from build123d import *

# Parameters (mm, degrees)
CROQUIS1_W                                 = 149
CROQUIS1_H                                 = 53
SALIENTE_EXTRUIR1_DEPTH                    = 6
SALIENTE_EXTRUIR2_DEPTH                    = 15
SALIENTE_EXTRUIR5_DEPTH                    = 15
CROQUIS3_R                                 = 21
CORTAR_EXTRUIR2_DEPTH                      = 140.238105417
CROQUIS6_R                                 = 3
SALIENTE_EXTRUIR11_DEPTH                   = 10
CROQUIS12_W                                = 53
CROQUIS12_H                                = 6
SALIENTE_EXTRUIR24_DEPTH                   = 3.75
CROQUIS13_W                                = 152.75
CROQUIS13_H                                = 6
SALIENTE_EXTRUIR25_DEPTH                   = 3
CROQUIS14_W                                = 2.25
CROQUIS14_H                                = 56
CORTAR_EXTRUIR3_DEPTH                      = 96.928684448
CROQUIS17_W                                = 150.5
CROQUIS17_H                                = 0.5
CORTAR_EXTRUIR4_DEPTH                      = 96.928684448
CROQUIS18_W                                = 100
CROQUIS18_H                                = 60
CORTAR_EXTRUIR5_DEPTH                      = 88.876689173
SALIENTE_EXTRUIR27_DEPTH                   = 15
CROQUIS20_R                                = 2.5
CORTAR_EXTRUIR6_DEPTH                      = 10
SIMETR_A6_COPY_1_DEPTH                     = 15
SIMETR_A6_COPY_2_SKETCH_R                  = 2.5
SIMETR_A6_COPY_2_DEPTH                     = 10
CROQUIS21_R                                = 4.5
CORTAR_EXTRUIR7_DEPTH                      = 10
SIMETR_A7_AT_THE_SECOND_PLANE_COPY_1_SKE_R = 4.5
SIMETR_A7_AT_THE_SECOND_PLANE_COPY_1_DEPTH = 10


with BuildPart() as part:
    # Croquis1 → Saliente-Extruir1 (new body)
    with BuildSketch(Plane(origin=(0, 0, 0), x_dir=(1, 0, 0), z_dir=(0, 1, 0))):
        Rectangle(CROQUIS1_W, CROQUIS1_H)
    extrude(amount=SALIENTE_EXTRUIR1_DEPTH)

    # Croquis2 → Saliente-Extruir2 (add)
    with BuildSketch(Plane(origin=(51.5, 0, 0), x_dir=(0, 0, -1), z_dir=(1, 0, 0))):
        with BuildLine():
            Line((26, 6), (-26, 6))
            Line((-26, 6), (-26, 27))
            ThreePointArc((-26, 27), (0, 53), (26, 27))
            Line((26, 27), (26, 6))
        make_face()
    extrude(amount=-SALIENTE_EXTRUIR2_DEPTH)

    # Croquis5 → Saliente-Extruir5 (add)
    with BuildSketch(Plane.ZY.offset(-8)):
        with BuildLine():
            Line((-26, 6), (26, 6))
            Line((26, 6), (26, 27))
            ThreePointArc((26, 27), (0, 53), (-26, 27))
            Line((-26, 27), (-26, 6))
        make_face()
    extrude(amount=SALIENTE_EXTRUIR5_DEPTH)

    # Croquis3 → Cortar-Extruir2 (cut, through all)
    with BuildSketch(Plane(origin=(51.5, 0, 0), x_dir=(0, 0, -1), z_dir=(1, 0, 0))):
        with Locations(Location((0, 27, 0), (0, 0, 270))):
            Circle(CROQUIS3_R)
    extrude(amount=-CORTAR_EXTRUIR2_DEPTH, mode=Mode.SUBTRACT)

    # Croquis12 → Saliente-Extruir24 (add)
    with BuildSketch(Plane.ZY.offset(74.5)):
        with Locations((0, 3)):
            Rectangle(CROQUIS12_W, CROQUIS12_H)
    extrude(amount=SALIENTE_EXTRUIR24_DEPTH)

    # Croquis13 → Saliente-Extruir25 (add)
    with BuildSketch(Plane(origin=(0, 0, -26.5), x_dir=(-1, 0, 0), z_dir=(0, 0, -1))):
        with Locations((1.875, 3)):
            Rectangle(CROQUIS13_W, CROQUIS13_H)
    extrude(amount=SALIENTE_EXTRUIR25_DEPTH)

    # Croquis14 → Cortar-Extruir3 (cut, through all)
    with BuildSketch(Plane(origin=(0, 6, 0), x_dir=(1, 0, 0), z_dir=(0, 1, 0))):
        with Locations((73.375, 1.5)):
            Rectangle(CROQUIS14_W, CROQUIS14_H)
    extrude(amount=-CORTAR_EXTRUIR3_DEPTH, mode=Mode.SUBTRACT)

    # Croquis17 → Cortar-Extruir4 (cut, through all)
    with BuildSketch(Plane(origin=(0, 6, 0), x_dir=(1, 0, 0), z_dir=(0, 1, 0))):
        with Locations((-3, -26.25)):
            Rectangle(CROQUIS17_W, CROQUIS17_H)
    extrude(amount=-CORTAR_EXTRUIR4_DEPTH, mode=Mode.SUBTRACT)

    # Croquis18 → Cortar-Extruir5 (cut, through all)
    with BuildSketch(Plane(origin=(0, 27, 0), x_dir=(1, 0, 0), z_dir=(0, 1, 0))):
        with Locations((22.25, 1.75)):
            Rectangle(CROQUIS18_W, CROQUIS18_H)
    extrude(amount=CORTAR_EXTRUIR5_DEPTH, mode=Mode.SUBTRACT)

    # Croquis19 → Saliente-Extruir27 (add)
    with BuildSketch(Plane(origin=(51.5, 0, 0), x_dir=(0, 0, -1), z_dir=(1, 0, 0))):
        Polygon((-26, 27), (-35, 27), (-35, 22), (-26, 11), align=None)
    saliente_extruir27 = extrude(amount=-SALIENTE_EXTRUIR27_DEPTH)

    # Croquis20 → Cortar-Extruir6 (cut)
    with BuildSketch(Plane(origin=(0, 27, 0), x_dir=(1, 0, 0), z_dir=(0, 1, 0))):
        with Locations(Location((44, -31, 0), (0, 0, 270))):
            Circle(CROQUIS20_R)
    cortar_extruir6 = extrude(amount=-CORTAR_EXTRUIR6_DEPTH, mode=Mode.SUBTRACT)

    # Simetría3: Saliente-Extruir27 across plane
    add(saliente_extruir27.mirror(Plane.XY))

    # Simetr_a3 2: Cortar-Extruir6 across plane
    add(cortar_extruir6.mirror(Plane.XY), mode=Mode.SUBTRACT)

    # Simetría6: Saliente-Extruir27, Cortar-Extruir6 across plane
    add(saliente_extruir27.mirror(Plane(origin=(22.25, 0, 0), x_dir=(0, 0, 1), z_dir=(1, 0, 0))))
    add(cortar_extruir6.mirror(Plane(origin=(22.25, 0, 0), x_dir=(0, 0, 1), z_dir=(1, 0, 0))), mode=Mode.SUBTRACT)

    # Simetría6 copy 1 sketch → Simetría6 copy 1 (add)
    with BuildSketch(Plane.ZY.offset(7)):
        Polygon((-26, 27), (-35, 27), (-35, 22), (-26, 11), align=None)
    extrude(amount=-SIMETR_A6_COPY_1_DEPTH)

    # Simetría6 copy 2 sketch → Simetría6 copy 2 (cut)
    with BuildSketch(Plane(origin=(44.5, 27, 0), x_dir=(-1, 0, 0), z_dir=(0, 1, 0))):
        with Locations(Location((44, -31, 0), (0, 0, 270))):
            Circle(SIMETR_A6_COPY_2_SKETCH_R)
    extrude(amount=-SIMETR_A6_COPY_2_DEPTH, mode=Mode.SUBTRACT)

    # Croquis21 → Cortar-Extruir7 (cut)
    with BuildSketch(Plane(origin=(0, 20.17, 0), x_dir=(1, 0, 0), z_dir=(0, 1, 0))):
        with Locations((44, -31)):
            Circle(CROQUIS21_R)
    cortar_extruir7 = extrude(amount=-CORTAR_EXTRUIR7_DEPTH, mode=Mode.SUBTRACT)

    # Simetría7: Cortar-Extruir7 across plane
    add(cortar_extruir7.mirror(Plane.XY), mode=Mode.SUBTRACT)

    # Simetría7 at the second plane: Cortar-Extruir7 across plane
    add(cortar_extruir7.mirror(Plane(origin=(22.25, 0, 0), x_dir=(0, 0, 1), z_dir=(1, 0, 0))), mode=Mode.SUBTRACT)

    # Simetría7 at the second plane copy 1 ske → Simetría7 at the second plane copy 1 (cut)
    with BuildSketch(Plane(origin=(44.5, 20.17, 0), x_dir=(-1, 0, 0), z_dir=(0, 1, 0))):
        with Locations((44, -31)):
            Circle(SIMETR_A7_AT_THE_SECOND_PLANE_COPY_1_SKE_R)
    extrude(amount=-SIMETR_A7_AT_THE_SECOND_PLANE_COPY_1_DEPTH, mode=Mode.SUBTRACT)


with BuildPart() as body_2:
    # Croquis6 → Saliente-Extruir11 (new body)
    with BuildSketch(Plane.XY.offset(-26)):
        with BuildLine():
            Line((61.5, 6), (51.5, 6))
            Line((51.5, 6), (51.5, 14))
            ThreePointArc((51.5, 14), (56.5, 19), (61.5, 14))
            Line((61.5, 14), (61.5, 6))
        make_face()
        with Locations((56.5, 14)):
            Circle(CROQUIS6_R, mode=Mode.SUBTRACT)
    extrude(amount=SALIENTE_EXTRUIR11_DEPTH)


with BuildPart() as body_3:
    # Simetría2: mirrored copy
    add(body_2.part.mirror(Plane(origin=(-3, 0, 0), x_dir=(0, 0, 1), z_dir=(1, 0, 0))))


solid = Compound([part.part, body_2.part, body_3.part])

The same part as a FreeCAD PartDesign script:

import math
import FreeCAD as App
import Part
import Sketcher

V = App.Vector
Q = App.Units.Quantity


def add_polygon(sketch, points):
    """Adds a closed chain of lines whose ends are joined by coincident constraints."""
    first, n = sketch.GeometryCount, len(points)
    for a, b in zip(points, points[1:] + points[:1]):
        sketch.addGeometry(Part.LineSegment(App.Vector(*a, 0), App.Vector(*b, 0)), False)
    for i in range(n):
        sketch.addConstraint(Sketcher.Constraint("Coincident", first + i, 2, first + (i + 1) % n, 1))

doc = App.newDocument("Part")
body = doc.addObject("PartDesign::Body", "Body")

sketch1 = body.newObject("Sketcher::SketchObject", "Sketch")
sketch1.AttachmentSupport = (doc.getObject("XZ_Plane"), [""])
sketch1.MapMode = "FlatFace"
add_polygon(sketch1, [(-74.5, -26.5), (-74.5, 26.5), (74.5, 26.5), (74.5, -26.5)])
sketch1.addConstraint([
    Sketcher.Constraint("Vertical", 0),
    Sketcher.Constraint("Horizontal", 1),
    Sketcher.Constraint("Vertical", 2),
    Sketcher.Constraint("Horizontal", 3),
    Sketcher.Constraint("Symmetric", 0, 2, 2, 2, -1, 1),
    Sketcher.Constraint("DistanceX", 1, 1, 1, 2, Q("149 mm")),
    Sketcher.Constraint("DistanceY", 0, 1, 0, 2, Q("53 mm")),
])
pad1 = body.newObject("PartDesign::Pad", "Pad")
pad1.Profile = sketch1
pad1.Length = 6
pad1.Reversed = True

sketch2 = body.newObject("Sketcher::SketchObject", "Sketch001")
sketch2.AttachmentSupport = (doc.getObject("YZ_Plane"), [""])
sketch2.MapMode = "FlatFace"
sketch2.AttachmentOffset = App.Placement(V(0, 0, 51.5), App.Rotation())
sketch2.addGeometry([
    Part.LineSegment(V(6, 26, 0), V(6, -26, 0)),
    Part.LineSegment(V(6, -26, 0), V(27, -26, 0)),
    Part.ArcOfCircle(Part.Circle(V(27, 0, 0), V(0, 0, 1), 26), math.radians(-90), math.radians(90)),
    Part.LineSegment(V(27, 26, 0), V(6, 26, 0)),
], False)
sketch2.addConstraint([
    Sketcher.Constraint("Coincident", 0, 2, 1, 1),
    Sketcher.Constraint("Tangent", 1, 2, 2, 1),
    Sketcher.Constraint("Tangent", 2, 2, 3, 1),
    Sketcher.Constraint("Coincident", 3, 2, 0, 1),
    Sketcher.Constraint("Vertical", 0),
    Sketcher.Constraint("Horizontal", 1),
    Sketcher.Constraint("Horizontal", 3),
    Sketcher.Constraint("PointOnObject", 2, 3, -1),
    Sketcher.Constraint("Radius", 2, Q("26 mm")),
    Sketcher.Constraint("DistanceX", 1, 1, 1, 2, Q("21 mm")),
    Sketcher.Constraint("DistanceX", -1, 1, 2, 3, Q("27 mm")),
])
pad2 = body.newObject("PartDesign::Pad", "Pad001")
pad2.Profile = sketch2
pad2.Length = 15
pad2.Reversed = True

sketch3 = body.newObject("Sketcher::SketchObject", "Sketch002")
sketch3.AttachmentSupport = (doc.getObject("YZ_Plane"), [""])
sketch3.MapMode = "FlatFace"
sketch3.AttachmentOffset = App.Placement(V(0, 0, 8), App.Rotation())
sketch3.addGeometry([
    Part.LineSegment(V(6, -26, 0), V(6, 26, 0)),
    Part.LineSegment(V(6, 26, 0), V(27, 26, 0)),
    Part.ArcOfCircle(Part.Circle(V(27, 0, 0), V(0, 0, 1), 26), math.radians(-90), math.radians(90)),
    Part.LineSegment(V(27, -26, 0), V(6, -26, 0)),
], False)
sketch3.addConstraint([
    Sketcher.Constraint("Coincident", 0, 2, 1, 1),
    Sketcher.Constraint("Tangent", 1, 2, 2, 2),
    Sketcher.Constraint("Tangent", 2, 1, 3, 1),
    Sketcher.Constraint("Coincident", 3, 2, 0, 1),
    Sketcher.Constraint("Vertical", 0),
    Sketcher.Constraint("Horizontal", 1),
    Sketcher.Constraint("Horizontal", 3),
    Sketcher.Constraint("PointOnObject", 2, 3, -1),
    Sketcher.Constraint("Radius", 2, Q("26 mm")),
    Sketcher.Constraint("DistanceX", 1, 1, 1, 2, Q("21 mm")),
    Sketcher.Constraint("DistanceX", -1, 1, 2, 3, Q("27 mm")),
])
pad3 = body.newObject("PartDesign::Pad", "Pad002")
pad3.Profile = sketch3
pad3.Length = 15
pad3.Reversed = True

sketch4 = body.newObject("Sketcher::SketchObject", "Sketch003")
sketch4.AttachmentSupport = (doc.getObject("YZ_Plane"), [""])
sketch4.MapMode = "FlatFace"
sketch4.AttachmentOffset = App.Placement(V(0, 0, 51.5), App.Rotation())
sketch4.addGeometry(Part.Circle(V(27, 0, 0), V(0, 0, 1), 21), False)
sketch4.addConstraint([
    Sketcher.Constraint("PointOnObject", 0, 3, -1),
    Sketcher.Constraint("Diameter", 0, Q("42 mm")),
    Sketcher.Constraint("DistanceX", -1, 1, 0, 3, Q("27 mm")),
])
pocket1 = body.newObject("PartDesign::Pocket", "Pocket")
pocket1.Profile = sketch4
pocket1.Type = "ThroughAll"

sketch5 = body.newObject("Sketcher::SketchObject", "Sketch004")
sketch5.AttachmentSupport = (doc.getObject("YZ_Plane"), [""])
sketch5.MapMode = "FlatFace"
sketch5.AttachmentOffset = App.Placement(V(0, 0, -74.5), App.Rotation())
add_polygon(sketch5, [(6, -26.5), (0, -26.5), (0, 26.5), (6, 26.5)])
sketch5.addConstraint([
    Sketcher.Constraint("Horizontal", 0),
    Sketcher.Constraint("Vertical", 1),
    Sketcher.Constraint("Horizontal", 2),
    Sketcher.Constraint("Vertical", 3),
    Sketcher.Constraint("Symmetric", 0, 2, 1, 2, -1, 1),
    Sketcher.Constraint("DistanceX", 0, 2, 0, 1, Q("6 mm")),
    Sketcher.Constraint("DistanceY", 1, 1, 1, 2, Q("53 mm")),
])
pad4 = body.newObject("PartDesign::Pad", "Pad003")
pad4.Profile = sketch5
pad4.Length = 3.75
pad4.Reversed = True

sketch6 = body.newObject("Sketcher::SketchObject", "Sketch005")
sketch6.AttachmentSupport = (doc.getObject("XY_Plane"), [""])
sketch6.MapMode = "FlatFace"
sketch6.AttachmentOffset = App.Placement(V(0, 0, -26.5), App.Rotation())
add_polygon(sketch6, [(74.5, 6), (74.5, 0), (-78.25, 0), (-78.25, 6)])
sketch6.addConstraint([
    Sketcher.Constraint("Vertical", 0),
    Sketcher.Constraint("Horizontal", 1),
    Sketcher.Constraint("Vertical", 2),
    Sketcher.Constraint("Horizontal", 3),
    Sketcher.Constraint("PointOnObject", 0, 2, -1),
    Sketcher.Constraint("DistanceY", 0, 2, 0, 1, Q("6 mm")),
    Sketcher.Constraint("DistanceX", 1, 2, 1, 1, Q("152.75 mm")),
    Sketcher.Constraint("DistanceX", -1, 1, 0, 2, Q("74.5 mm")),
])
pad5 = body.newObject("PartDesign::Pad", "Pad004")
pad5.Profile = sketch6
pad5.Length = 3
pad5.Reversed = True

sketch7 = body.newObject("Sketcher::SketchObject", "Sketch006")
sketch7.AttachmentSupport = (doc.getObject("XZ_Plane"), [""])
sketch7.MapMode = "FlatFace"
sketch7.AttachmentOffset = App.Placement(V(0, 0, -6), App.Rotation())
add_polygon(sketch7, [(72.25, -29.5), (72.25, 26.5), (74.5, 26.5), (74.5, -29.5)])
sketch7.addConstraint([
    Sketcher.Constraint("Vertical", 0),
    Sketcher.Constraint("Horizontal", 1),
    Sketcher.Constraint("Vertical", 2),
    Sketcher.Constraint("Horizontal", 3),
    Sketcher.Constraint("DistanceY", 0, 1, 0, 2, Q("56 mm")),
    Sketcher.Constraint("DistanceX", 1, 1, 1, 2, Q("2.25 mm")),
    Sketcher.Constraint("DistanceY", -1, 1, 0, 2, Q("26.5 mm")),
    Sketcher.Constraint("DistanceX", -1, 1, 1, 2, Q("74.5 mm")),
])
pocket2 = body.newObject("PartDesign::Pocket", "Pocket001")
pocket2.Profile = sketch7
pocket2.Type = "ThroughAll"
pocket2.Reversed = True

sketch8 = body.newObject("Sketcher::SketchObject", "Sketch007")
sketch8.AttachmentSupport = (doc.getObject("XZ_Plane"), [""])
sketch8.MapMode = "FlatFace"
sketch8.AttachmentOffset = App.Placement(V(0, 0, -6), App.Rotation())
add_polygon(sketch8, [(-78.25, 26), (-78.25, 26.5), (72.25, 26.5), (72.25, 26)])
sketch8.addConstraint([
    Sketcher.Constraint("Vertical", 0),
    Sketcher.Constraint("Horizontal", 1),
    Sketcher.Constraint("Vertical", 2),
    Sketcher.Constraint("Horizontal", 3),
    Sketcher.Constraint("DistanceX", 1, 1, 1, 2, Q("150.5 mm")),
    Sketcher.Constraint("DistanceY", 0, 1, 0, 2, Q("0.5 mm")),
    Sketcher.Constraint("DistanceY", -1, 1, 2, 2, Q("26 mm")),
    Sketcher.Constraint("DistanceX", 0, 2, -1, 1, Q("78.25 mm")),
])
pocket3 = body.newObject("PartDesign::Pocket", "Pocket002")
pocket3.Profile = sketch8
pocket3.Type = "ThroughAll"
pocket3.Reversed = True

sketch9 = body.newObject("Sketcher::SketchObject", "Sketch008")
sketch9.AttachmentSupport = (doc.getObject("XZ_Plane"), [""])
sketch9.MapMode = "FlatFace"
sketch9.AttachmentOffset = App.Placement(V(0, 0, -27), App.Rotation())
add_polygon(sketch9, [(-27.75, -31.75), (-27.75, 28.25), (72.25, 28.25), (72.25, -31.75)])
sketch9.addConstraint([
    Sketcher.Constraint("Vertical", 0),
    Sketcher.Constraint("Horizontal", 1),
    Sketcher.Constraint("Vertical", 2),
    Sketcher.Constraint("Horizontal", 3),
    Sketcher.Constraint("DistanceX", 1, 1, 1, 2, Q("100 mm")),
    Sketcher.Constraint("DistanceY", 0, 1, 0, 2, Q("60 mm")),
    Sketcher.Constraint("DistanceX", 0, 2, -1, 1, Q("27.75 mm")),
    Sketcher.Constraint("DistanceY", -1, 1, 0, 2, Q("28.25 mm")),
])
pocket4 = body.newObject("PartDesign::Pocket", "Pocket003")
pocket4.Profile = sketch9
pocket4.Type = "ThroughAll"

sketch10 = body.newObject("Sketcher::SketchObject", "Sketch009")
sketch10.AttachmentSupport = (doc.getObject("YZ_Plane"), [""])
sketch10.MapMode = "FlatFace"
sketch10.AttachmentOffset = App.Placement(V(0, 0, 51.5), App.Rotation())
add_polygon(sketch10, [(27, 26), (27, 35), (22, 35), (11, 26)])
sketch10.addConstraint([
    Sketcher.Constraint("Vertical", 0),
    Sketcher.Constraint("Horizontal", 1),
    Sketcher.Constraint("Horizontal", 3),
    Sketcher.Constraint("DistanceX", 1, 2, 1, 1, Q("5 mm")),
    Sketcher.Constraint("DistanceX", 3, 1, 3, 2, Q("16 mm")),
    Sketcher.Constraint("DistanceY", 0, 1, 0, 2, Q("9 mm")),
    Sketcher.Constraint("DistanceX", -1, 1, 0, 2, Q("27 mm")),
    Sketcher.Constraint("DistanceY", -1, 1, 0, 2, Q("35 mm")),
])
pad6 = body.newObject("PartDesign::Pad", "Pad005")
pad6.Profile = sketch10
pad6.Length = 15
pad6.Reversed = True

sketch11 = body.newObject("Sketcher::SketchObject", "Sketch010")
sketch11.AttachmentSupport = (doc.getObject("XZ_Plane"), [""])
sketch11.MapMode = "FlatFace"
sketch11.AttachmentOffset = App.Placement(V(0, 0, -27), App.Rotation())
sketch11.addGeometry(Part.Circle(V(44, 31, 0), V(0, 0, 1), 2.5), False)
sketch11.addConstraint([
    Sketcher.Constraint("Diameter", 0, Q("5 mm")),
    Sketcher.Constraint("DistanceX", -1, 1, 0, 3, Q("44 mm")),
    Sketcher.Constraint("DistanceY", -1, 1, 0, 3, Q("31 mm")),
])
pocket5 = body.newObject("PartDesign::Pocket", "Pocket004")
pocket5.Profile = sketch11
pocket5.Length = 10
pocket5.Reversed = True
doc.recompute()

mirrored = body.newObject("PartDesign::Mirrored", "Mirrored")
mirrored.Originals = [pad6]
mirrored.MirrorPlane = (doc.getObject("XY_Plane"), [""])
body.Tip = mirrored
doc.recompute()

mirrored2 = body.newObject("PartDesign::Mirrored", "Mirrored001")
mirrored2.Originals = [pocket5]
mirrored2.MirrorPlane = (doc.getObject("XY_Plane"), [""])
body.Tip = mirrored2
doc.recompute()

datumplane = body.newObject("PartDesign::Plane", "DatumPlane")
datumplane.AttachmentSupport = (doc.getObject("YZ_Plane"), [""])
datumplane.MapMode = "FlatFace"
datumplane.AttachmentOffset = App.Placement(V(0, 0, 22.25), App.Rotation())
mirrored3 = body.newObject("PartDesign::Mirrored", "Mirrored002")
mirrored3.Originals = [pad6, pocket5]
mirrored3.MirrorPlane = (datumplane, [""])
body.Tip = mirrored3

sketch12 = body.newObject("Sketcher::SketchObject", "Sketch011")
sketch12.AttachmentSupport = (doc.getObject("YZ_Plane"), [""])
sketch12.MapMode = "FlatFace"
sketch12.AttachmentOffset = App.Placement(V(0, 0, -7), App.Rotation())
add_polygon(sketch12, [(27, -26), (27, -35), (22, -35), (11, -26)])
sketch12.addConstraint([
    Sketcher.Constraint("Vertical", 0),
    Sketcher.Constraint("Horizontal", 1),
    Sketcher.Constraint("Horizontal", 3),
    Sketcher.Constraint("DistanceX", 1, 2, 1, 1, Q("5 mm")),
    Sketcher.Constraint("DistanceX", 3, 1, 3, 2, Q("16 mm")),
    Sketcher.Constraint("DistanceY", 0, 2, 0, 1, Q("9 mm")),
    Sketcher.Constraint("DistanceX", -1, 1, 0, 2, Q("27 mm")),
    Sketcher.Constraint("DistanceY", 0, 2, -1, 1, Q("35 mm")),
])
pad7 = body.newObject("PartDesign::Pad", "Pad006")
pad7.Profile = sketch12
pad7.Length = 15

sketch13 = body.newObject("Sketcher::SketchObject", "Sketch012")
sketch13.AttachmentSupport = (doc.getObject("XZ_Plane"), [""])
sketch13.MapMode = "FlatFace"
sketch13.AttachmentOffset = App.Placement(V(0, 0, -27), App.Rotation())
sketch13.addGeometry(Part.Circle(V(0.5, -31, 0), V(0, 0, 1), 2.5), False)
sketch13.addConstraint([
    Sketcher.Constraint("Diameter", 0, Q("5 mm")),
    Sketcher.Constraint("DistanceY", 0, 3, -1, 1, Q("31 mm")),
    Sketcher.Constraint("DistanceX", -1, 1, 0, 3, Q("0.5 mm")),
])
pocket6 = body.newObject("PartDesign::Pocket", "Pocket005")
pocket6.Profile = sketch13
pocket6.Length = 10
pocket6.Reversed = True

sketch14 = body.newObject("Sketcher::SketchObject", "Sketch013")
sketch14.AttachmentSupport = (doc.getObject("XZ_Plane"), [""])
sketch14.MapMode = "FlatFace"
sketch14.AttachmentOffset = App.Placement(V(0, 0, -20.17), App.Rotation())
sketch14.addGeometry(Part.Circle(V(44, 31, 0), V(0, 0, 1), 4.5), False)
sketch14.addConstraint([
    Sketcher.Constraint("Diameter", 0, Q("9 mm")),
    Sketcher.Constraint("DistanceX", -1, 1, 0, 3, Q("44 mm")),
    Sketcher.Constraint("DistanceY", -1, 1, 0, 3, Q("31 mm")),
])
pocket7 = body.newObject("PartDesign::Pocket", "Pocket006")
pocket7.Profile = sketch14
pocket7.Length = 10
pocket7.Reversed = True
doc.recompute()

mirrored4 = body.newObject("PartDesign::Mirrored", "Mirrored003")
mirrored4.Originals = [pocket7]
mirrored4.MirrorPlane = (doc.getObject("XY_Plane"), [""])
body.Tip = mirrored4
doc.recompute()

datumplane2 = body.newObject("PartDesign::Plane", "DatumPlane001")
datumplane2.AttachmentSupport = (doc.getObject("YZ_Plane"), [""])
datumplane2.MapMode = "FlatFace"
datumplane2.AttachmentOffset = App.Placement(V(0, 0, 22.25), App.Rotation())
mirrored5 = body.newObject("PartDesign::Mirrored", "Mirrored004")
mirrored5.Originals = [pocket7]
mirrored5.MirrorPlane = (datumplane2, [""])
body.Tip = mirrored5

sketch15 = body.newObject("Sketcher::SketchObject", "Sketch014")
sketch15.AttachmentSupport = (doc.getObject("XZ_Plane"), [""])
sketch15.MapMode = "FlatFace"
sketch15.AttachmentOffset = App.Placement(V(0, 0, -20.17), App.Rotation())
sketch15.addGeometry(Part.Circle(V(0.5, -31, 0), V(0, 0, 1), 4.5), False)
sketch15.addConstraint([
    Sketcher.Constraint("Diameter", 0, Q("9 mm")),
    Sketcher.Constraint("DistanceY", 0, 3, -1, 1, Q("31 mm")),
    Sketcher.Constraint("DistanceX", -1, 1, 0, 3, Q("0.5 mm")),
])
pocket8 = body.newObject("PartDesign::Pocket", "Pocket007")
pocket8.Profile = sketch15
pocket8.Length = 10
pocket8.Reversed = True
body2 = doc.addObject("PartDesign::Body", "Body001")

sketch16 = body2.newObject("Sketcher::SketchObject", "Sketch015")
sketch16.AttachmentSupport = (doc.getObject("XY_Plane001"), [""])
sketch16.MapMode = "FlatFace"
sketch16.AttachmentOffset = App.Placement(V(0, 0, -26), App.Rotation())
sketch16.addGeometry([
    Part.LineSegment(V(51.5, 6, 0), V(61.5, 6, 0)),
    Part.LineSegment(V(61.5, 6, 0), V(61.5, 14, 0)),
    Part.ArcOfCircle(Part.Circle(V(56.5, 14, 0), V(0, 0, 1), 5), math.radians(0), math.radians(180)),
    Part.LineSegment(V(51.5, 14, 0), V(51.5, 6, 0)),
    Part.Circle(V(56.5, 14, 0), V(0, 0, 1), 3),
], False)
sketch16.addConstraint([
    Sketcher.Constraint("Coincident", 0, 2, 1, 1),
    Sketcher.Constraint("Tangent", 1, 2, 2, 1),
    Sketcher.Constraint("Tangent", 2, 2, 3, 1),
    Sketcher.Constraint("Coincident", 3, 2, 0, 1),
    Sketcher.Constraint("Horizontal", 0),
    Sketcher.Constraint("Vertical", 1),
    Sketcher.Constraint("Vertical", 3),
    Sketcher.Constraint("Coincident", 4, 3, 2, 3),
    Sketcher.Constraint("Diameter", 4, Q("6 mm")),
    Sketcher.Constraint("Radius", 2, Q("5 mm")),
    Sketcher.Constraint("DistanceY", 1, 1, 1, 2, Q("8 mm")),
    Sketcher.Constraint("DistanceY", -1, 1, 2, 3, Q("14 mm")),
    Sketcher.Constraint("DistanceX", -1, 1, 2, 3, Q("56.5 mm")),
])
pad8 = body2.newObject("PartDesign::Pad", "Pad007")
pad8.Profile = sketch16
pad8.Length = 10
body3 = doc.addObject("PartDesign::Body", "Body002")
doc.recompute()

mirroring = doc.addObject("Part::Mirroring", "Mirroring")
mirroring.Source = body2
mirroring.Base = V(-3, 0, 0)
mirroring.Normal = V(1, 0, 0)
body3.BaseFeature = mirroring
doc.recompute()
mirroring.Visibility = False

doc.recompute()
